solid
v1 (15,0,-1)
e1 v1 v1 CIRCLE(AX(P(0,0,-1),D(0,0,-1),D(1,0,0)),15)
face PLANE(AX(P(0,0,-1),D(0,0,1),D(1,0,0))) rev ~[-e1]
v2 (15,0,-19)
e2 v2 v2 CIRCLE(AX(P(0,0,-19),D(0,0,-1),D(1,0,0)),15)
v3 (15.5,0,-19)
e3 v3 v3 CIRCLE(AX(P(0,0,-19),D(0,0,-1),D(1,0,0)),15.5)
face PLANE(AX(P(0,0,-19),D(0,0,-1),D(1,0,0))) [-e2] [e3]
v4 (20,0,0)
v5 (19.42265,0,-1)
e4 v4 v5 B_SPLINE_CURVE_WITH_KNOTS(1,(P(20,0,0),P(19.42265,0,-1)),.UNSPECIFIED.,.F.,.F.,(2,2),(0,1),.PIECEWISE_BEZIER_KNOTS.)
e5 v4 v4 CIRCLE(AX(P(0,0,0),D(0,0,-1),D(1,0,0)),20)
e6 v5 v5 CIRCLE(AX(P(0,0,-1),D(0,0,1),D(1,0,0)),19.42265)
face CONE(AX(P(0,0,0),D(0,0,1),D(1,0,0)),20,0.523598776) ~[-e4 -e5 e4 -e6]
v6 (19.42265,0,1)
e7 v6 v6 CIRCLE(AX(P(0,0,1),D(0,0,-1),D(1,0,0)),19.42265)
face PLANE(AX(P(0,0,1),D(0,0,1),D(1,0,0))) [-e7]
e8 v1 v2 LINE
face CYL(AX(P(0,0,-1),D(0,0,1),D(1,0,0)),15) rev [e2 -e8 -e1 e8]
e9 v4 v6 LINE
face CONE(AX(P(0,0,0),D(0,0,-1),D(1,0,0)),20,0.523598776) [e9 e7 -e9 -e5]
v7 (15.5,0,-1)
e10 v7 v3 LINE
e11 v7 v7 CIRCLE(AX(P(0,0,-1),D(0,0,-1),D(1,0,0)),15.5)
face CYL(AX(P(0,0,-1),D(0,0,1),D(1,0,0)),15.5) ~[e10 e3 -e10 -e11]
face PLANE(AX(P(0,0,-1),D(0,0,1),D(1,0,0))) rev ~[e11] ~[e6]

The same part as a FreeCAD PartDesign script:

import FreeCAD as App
import Part
import Sketcher

V = App.Vector

doc = App.newDocument("Part")
body = doc.addObject("PartDesign::Body", "Body")

sketch1 = doc.addObject("Sketcher::SketchObject", "Sketch")
body.addObject(sketch1)
sketch1.AttachmentSupport = (doc.XY_Plane, [""])
sketch1.MapMode = "FlatFace"
sketch1.addGeometry(Part.Circle(V(0, 0, 0), V(0, 0, 1), 20), False)
sketch1.addConstraint(Sketcher.Constraint("Coincident", 0, 3, -1, 1))
sketch1.addConstraint(Sketcher.Constraint("Diameter", 0, 40.0))
pad1 = doc.addObject("PartDesign::Pad", "Pad")
body.addObject(pad1)
pad1.Profile = sketch1
pad1.Length = 1
pad1.TaperAngle = -30
pad2 = doc.addObject("PartDesign::Pad", "Pad001")
body.addObject(pad2)
pad2.Profile = sketch1
pad2.Length = 1
pad2.Reversed = True
pad2.TaperAngle = -30

sketch2 = doc.addObject("Sketcher::SketchObject", "Sketch001")
body.addObject(sketch2)
sketch2.AttachmentSupport = (doc.XY_Plane, [""])
sketch2.MapMode = "FlatFace"
sketch2.AttachmentOffset = App.Placement(V(0, 0, -1), App.Rotation())
sketch2.addGeometry(Part.Circle(V(0, 0, 0), V(0, 0, 1), 15.5), False)
sketch2.addGeometry(Part.Circle(V(0, 0, 0), V(0, 0, 1), 15), False)
sketch2.addConstraint(Sketcher.Constraint("Coincident", 0, 3, -1, 1))
sketch2.addConstraint(Sketcher.Constraint("Coincident", 1, 3, -1, 1))
sketch2.addConstraint(Sketcher.Constraint("Diameter", 0, 31.0))
sketch2.addConstraint(Sketcher.Constraint("Diameter", 1, 30.0))
pad3 = doc.addObject("PartDesign::Pad", "Pad002")
body.addObject(pad3)
pad3.Profile = sketch2
pad3.Length = 18
pad3.Reversed = True

doc.recompute()
